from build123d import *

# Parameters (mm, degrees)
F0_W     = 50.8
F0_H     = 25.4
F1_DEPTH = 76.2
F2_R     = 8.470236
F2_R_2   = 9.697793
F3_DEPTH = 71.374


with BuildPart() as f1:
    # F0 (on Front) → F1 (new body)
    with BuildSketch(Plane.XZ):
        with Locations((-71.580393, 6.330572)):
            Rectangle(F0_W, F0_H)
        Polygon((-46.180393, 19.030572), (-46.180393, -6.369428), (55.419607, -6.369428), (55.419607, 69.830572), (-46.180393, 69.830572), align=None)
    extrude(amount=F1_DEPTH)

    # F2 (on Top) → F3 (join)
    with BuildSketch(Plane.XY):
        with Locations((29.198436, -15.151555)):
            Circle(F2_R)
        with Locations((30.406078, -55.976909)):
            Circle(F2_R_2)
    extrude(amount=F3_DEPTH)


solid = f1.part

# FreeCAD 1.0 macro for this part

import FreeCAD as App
import Part
import Sketcher

V = App.Vector
Q = App.Units.Quantity

doc = App.newDocument("Part")
body = doc.addObject("PartDesign::Body", "Body")

# Sketch on XZ plane
sketch1 = body.newObject("Sketcher::SketchObject", "Sketch")
sketch1.AttachmentSupport = (doc.getObject("XZ_Plane"), [""])
sketch1.MapMode = "FlatFace"
sketch1.addGeometry(Part.LineSegment(V(-97, 19, 0), V(-97, -6, 0)), False)
sketch1.addGeometry(Part.LineSegment(V(-97, -6, 0), V(55, -6, 0)), False)
sketch1.addGeometry(Part.LineSegment(V(55, -6, 0), V(55, 70, 0)), False)
sketch1.addGeometry(Part.LineSegment(V(55, 70, 0), V(-46, 70, 0)), False)
sketch1.addGeometry(Part.LineSegment(V(-46, 70, 0), V(-46, 19, 0)), False)
sketch1.addGeometry(Part.LineSegment(V(-46, 19, 0), V(-97, 19, 0)), False)
sketch1.addConstraint(Sketcher.Constraint("Coincident", 0, 2, 1, 1))
sketch1.addConstraint(Sketcher.Constraint("Coincident", 1, 2, 2, 1))
sketch1.addConstraint(Sketcher.Constraint("Coincident", 2, 2, 3, 1))
sketch1.addConstraint(Sketcher.Constraint("Coincident", 3, 2, 4, 1))
sketch1.addConstraint(Sketcher.Constraint("Coincident", 4, 2, 5, 1))
sketch1.addConstraint(Sketcher.Constraint("Coincident", 5, 2, 0, 1))
sketch1.addConstraint(Sketcher.Constraint("Vertical", 0))
sketch1.addConstraint(Sketcher.Constraint("Horizontal", 1))
sketch1.addConstraint(Sketcher.Constraint("Vertical", 2))
sketch1.addConstraint(Sketcher.Constraint("Horizontal", 3))
sketch1.addConstraint(Sketcher.Constraint("Vertical", 4))
sketch1.addConstraint(Sketcher.Constraint("Horizontal", 5))
sketch1.addConstraint(Sketcher.Constraint("Equal", 5, 4))
sketch1.addConstraint(Sketcher.Constraint("DistanceX", 1, 1, 1, 2, Q("6 in")))
sketch1.addConstraint(Sketcher.Constraint("DistanceX", 3, 2, 3, 1, Q("4 in")))
sketch1.addConstraint(Sketcher.Constraint("DistanceY", 0, 2, 0, 1, Q("1 in")))
sketch1.addConstraint(Sketcher.Constraint("DistanceY", -1, 1, 4, 2, Q("19.030572 mm")))
sketch1.addConstraint(Sketcher.Constraint("DistanceX", 0, 2, -1, 1, Q("96.980393 mm")))
pad1 = body.newObject("PartDesign::Pad", "Pad")
pad1.Profile = sketch1
pad1.Length = Q("3 in")

# Sketch on XY plane
sketch2 = body.newObject("Sketcher::SketchObject", "Sketch001")
sketch2.AttachmentSupport = (doc.getObject("XY_Plane"), [""])
sketch2.MapMode = "FlatFace"
sketch2.addGeometry(Part.Circle(V(29, -15, 0), V(0, 0, 1), 8), False)
sketch2.addGeometry(Part.Circle(V(30, -56, 0), V(0, 0, 1), 10), False)
sketch2.addConstraint(Sketcher.Constraint("Diameter", 0, Q("16.940472 mm")))
sketch2.addConstraint(Sketcher.Constraint("Diameter", 1, Q("19.395586 mm")))
sketch2.addConstraint(Sketcher.Constraint("DistanceX", -1, 1, 1, 3, Q("30.406078 mm")))
sketch2.addConstraint(Sketcher.Constraint("DistanceY", 1, 3, -1, 1, Q("55.976909 mm")))
sketch2.addConstraint(Sketcher.Constraint("DistanceX", 0, 3, 1, 3, Q("1.207642 mm")))
sketch2.addConstraint(Sketcher.Constraint("DistanceY", 0, 3, -1, 1, Q("15.151555 mm")))
pad2 = body.newObject("PartDesign::Pad", "Pad001")
pad2.Profile = sketch2
pad2.Length = Q("2.81 in")

doc.recompute()
